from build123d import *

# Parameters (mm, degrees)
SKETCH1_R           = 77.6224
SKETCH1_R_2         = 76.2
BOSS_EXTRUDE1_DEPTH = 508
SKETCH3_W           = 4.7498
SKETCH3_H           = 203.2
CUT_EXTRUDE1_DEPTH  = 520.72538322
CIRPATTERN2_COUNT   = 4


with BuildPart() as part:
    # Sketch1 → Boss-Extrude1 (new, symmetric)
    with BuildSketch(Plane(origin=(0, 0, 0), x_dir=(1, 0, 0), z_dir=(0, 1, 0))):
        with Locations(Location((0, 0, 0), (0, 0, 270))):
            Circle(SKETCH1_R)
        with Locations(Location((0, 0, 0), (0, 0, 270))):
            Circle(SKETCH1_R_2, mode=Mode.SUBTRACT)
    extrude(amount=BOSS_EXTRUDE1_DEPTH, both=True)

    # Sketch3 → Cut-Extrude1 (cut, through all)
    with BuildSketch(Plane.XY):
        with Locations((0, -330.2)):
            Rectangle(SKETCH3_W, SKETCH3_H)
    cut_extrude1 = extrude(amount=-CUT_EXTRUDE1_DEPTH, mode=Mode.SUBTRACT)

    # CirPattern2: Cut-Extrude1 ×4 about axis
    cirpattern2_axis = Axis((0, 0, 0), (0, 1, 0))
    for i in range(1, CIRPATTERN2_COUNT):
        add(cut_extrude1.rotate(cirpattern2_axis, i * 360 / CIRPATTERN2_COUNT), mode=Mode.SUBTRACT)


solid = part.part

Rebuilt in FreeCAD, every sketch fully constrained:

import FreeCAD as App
import Part
import Sketcher
from FreeCAD import Vector
Q = App.Units.Quantity


def add_polygon(sketch, points):
    """Adds a closed chain of lines whose ends are joined by coincident constraints."""
    first, n = sketch.GeometryCount, len(points)
    for a, b in zip(points, points[1:] + points[:1]):
        sketch.addGeometry(Part.LineSegment(App.Vector(*a, 0), App.Vector(*b, 0)), False)
    for i in range(n):
        sketch.addConstraint(Sketcher.Constraint("Coincident", first + i, 2, first + (i + 1) % n, 1))

doc = App.newDocument("Part")
params = doc.addObject("Spreadsheet::Sheet", "Params")
for row, (alias, value) in enumerate([
    ("sketch1_diameter", "6 in"),
    ("sketch1_diameter2", "6.112 in"),
    ("pad1_length", "40 in"),
    ("sketch2_height", "8 in"),
    ("sketch2_width", "0.187 in"),
], start=1):
    params.set(f"A{row}", alias)
    params.set(f"B{row}", "=" + value)
    params.setAlias(f"B{row}", alias)

body = doc.addObject("PartDesign::Body", "Body")

# Sketch on XZ plane
sketch1 = doc.addObject("Sketcher::SketchObject", "Sketch")
body.addObject(sketch1)
sketch1.AttachmentSupport = (doc.XZ_Plane, [""])
sketch1.MapMode = "FlatFace"
sketch1.addGeometry([
    Part.Circle(Vector(0, 0, 0), Vector(0, 0, 1), 77.6224),
    Part.Circle(Vector(0, 0, 0), Vector(0, 0, 1), 76.2),
], False)
sketch1.addConstraint([
    Sketcher.Constraint("Coincident", 0, 3, -1, 1),
    Sketcher.Constraint("Coincident", 1, 3, -1, 1),
    Sketcher.Constraint("Diameter", 1, Q("6 in")),
    Sketcher.Constraint("Diameter", 0, Q("6.112 in")),
])
sketch1.setExpression("Constraints[2]", "Params.sketch1_diameter")
sketch1.setExpression("Constraints[3]", "Params.sketch1_diameter2")
pad1 = doc.addObject("PartDesign::Pad", "Pad")
body.addObject(pad1)
pad1.Profile = sketch1
pad1.setExpression("Length", "Params.pad1_length")
pad1.Midplane = True

# Sketch on XY plane
sketch2 = doc.addObject("Sketcher::SketchObject", "Sketch001")
body.addObject(sketch2)
sketch2.AttachmentSupport = (doc.XY_Plane, [""])
sketch2.MapMode = "FlatFace"
add_polygon(sketch2, [(-2.3749, -228.6), (-2.3749, -431.8), (2.3749, -431.8), (2.3749, -228.6)])  # lines 0-3
sketch2.addConstraint([
    Sketcher.Constraint("Vertical", 0),
    Sketcher.Constraint("Horizontal", 1),
    Sketcher.Constraint("Vertical", 2),
    Sketcher.Constraint("Horizontal", 3),
    Sketcher.Constraint("DistanceY", 0, 2, 0, 1, Q("8 in")),
    Sketcher.Constraint("DistanceY", 0, 2, -1, 1, Q("17 in")),
    Sketcher.Constraint("DistanceX", 1, 1, 1, 2, Q("0.187 in")),
    Sketcher.Constraint("DistanceX", 0, 2, -1, 1, Q("0.0935 in")),
])
sketch2.setExpression("Constraints[8]", "Params.sketch2_height")
sketch2.setExpression("Constraints[10]", "Params.sketch2_width")
pocket1 = doc.addObject("PartDesign::Pocket", "Pocket")
body.addObject(pocket1)
pocket1.Profile = sketch2
pocket1.Type = "ThroughAll"
doc.recompute()

polarpattern = doc.addObject("PartDesign::PolarPattern", "PolarPattern")
body.addObject(polarpattern)
polarpattern.Originals = [pocket1]
polarpattern.Axis = (doc.Y_Axis, [""])
polarpattern.Angle = 360
polarpattern.Occurrences = 4
body.Tip = polarpattern

doc.recompute()
